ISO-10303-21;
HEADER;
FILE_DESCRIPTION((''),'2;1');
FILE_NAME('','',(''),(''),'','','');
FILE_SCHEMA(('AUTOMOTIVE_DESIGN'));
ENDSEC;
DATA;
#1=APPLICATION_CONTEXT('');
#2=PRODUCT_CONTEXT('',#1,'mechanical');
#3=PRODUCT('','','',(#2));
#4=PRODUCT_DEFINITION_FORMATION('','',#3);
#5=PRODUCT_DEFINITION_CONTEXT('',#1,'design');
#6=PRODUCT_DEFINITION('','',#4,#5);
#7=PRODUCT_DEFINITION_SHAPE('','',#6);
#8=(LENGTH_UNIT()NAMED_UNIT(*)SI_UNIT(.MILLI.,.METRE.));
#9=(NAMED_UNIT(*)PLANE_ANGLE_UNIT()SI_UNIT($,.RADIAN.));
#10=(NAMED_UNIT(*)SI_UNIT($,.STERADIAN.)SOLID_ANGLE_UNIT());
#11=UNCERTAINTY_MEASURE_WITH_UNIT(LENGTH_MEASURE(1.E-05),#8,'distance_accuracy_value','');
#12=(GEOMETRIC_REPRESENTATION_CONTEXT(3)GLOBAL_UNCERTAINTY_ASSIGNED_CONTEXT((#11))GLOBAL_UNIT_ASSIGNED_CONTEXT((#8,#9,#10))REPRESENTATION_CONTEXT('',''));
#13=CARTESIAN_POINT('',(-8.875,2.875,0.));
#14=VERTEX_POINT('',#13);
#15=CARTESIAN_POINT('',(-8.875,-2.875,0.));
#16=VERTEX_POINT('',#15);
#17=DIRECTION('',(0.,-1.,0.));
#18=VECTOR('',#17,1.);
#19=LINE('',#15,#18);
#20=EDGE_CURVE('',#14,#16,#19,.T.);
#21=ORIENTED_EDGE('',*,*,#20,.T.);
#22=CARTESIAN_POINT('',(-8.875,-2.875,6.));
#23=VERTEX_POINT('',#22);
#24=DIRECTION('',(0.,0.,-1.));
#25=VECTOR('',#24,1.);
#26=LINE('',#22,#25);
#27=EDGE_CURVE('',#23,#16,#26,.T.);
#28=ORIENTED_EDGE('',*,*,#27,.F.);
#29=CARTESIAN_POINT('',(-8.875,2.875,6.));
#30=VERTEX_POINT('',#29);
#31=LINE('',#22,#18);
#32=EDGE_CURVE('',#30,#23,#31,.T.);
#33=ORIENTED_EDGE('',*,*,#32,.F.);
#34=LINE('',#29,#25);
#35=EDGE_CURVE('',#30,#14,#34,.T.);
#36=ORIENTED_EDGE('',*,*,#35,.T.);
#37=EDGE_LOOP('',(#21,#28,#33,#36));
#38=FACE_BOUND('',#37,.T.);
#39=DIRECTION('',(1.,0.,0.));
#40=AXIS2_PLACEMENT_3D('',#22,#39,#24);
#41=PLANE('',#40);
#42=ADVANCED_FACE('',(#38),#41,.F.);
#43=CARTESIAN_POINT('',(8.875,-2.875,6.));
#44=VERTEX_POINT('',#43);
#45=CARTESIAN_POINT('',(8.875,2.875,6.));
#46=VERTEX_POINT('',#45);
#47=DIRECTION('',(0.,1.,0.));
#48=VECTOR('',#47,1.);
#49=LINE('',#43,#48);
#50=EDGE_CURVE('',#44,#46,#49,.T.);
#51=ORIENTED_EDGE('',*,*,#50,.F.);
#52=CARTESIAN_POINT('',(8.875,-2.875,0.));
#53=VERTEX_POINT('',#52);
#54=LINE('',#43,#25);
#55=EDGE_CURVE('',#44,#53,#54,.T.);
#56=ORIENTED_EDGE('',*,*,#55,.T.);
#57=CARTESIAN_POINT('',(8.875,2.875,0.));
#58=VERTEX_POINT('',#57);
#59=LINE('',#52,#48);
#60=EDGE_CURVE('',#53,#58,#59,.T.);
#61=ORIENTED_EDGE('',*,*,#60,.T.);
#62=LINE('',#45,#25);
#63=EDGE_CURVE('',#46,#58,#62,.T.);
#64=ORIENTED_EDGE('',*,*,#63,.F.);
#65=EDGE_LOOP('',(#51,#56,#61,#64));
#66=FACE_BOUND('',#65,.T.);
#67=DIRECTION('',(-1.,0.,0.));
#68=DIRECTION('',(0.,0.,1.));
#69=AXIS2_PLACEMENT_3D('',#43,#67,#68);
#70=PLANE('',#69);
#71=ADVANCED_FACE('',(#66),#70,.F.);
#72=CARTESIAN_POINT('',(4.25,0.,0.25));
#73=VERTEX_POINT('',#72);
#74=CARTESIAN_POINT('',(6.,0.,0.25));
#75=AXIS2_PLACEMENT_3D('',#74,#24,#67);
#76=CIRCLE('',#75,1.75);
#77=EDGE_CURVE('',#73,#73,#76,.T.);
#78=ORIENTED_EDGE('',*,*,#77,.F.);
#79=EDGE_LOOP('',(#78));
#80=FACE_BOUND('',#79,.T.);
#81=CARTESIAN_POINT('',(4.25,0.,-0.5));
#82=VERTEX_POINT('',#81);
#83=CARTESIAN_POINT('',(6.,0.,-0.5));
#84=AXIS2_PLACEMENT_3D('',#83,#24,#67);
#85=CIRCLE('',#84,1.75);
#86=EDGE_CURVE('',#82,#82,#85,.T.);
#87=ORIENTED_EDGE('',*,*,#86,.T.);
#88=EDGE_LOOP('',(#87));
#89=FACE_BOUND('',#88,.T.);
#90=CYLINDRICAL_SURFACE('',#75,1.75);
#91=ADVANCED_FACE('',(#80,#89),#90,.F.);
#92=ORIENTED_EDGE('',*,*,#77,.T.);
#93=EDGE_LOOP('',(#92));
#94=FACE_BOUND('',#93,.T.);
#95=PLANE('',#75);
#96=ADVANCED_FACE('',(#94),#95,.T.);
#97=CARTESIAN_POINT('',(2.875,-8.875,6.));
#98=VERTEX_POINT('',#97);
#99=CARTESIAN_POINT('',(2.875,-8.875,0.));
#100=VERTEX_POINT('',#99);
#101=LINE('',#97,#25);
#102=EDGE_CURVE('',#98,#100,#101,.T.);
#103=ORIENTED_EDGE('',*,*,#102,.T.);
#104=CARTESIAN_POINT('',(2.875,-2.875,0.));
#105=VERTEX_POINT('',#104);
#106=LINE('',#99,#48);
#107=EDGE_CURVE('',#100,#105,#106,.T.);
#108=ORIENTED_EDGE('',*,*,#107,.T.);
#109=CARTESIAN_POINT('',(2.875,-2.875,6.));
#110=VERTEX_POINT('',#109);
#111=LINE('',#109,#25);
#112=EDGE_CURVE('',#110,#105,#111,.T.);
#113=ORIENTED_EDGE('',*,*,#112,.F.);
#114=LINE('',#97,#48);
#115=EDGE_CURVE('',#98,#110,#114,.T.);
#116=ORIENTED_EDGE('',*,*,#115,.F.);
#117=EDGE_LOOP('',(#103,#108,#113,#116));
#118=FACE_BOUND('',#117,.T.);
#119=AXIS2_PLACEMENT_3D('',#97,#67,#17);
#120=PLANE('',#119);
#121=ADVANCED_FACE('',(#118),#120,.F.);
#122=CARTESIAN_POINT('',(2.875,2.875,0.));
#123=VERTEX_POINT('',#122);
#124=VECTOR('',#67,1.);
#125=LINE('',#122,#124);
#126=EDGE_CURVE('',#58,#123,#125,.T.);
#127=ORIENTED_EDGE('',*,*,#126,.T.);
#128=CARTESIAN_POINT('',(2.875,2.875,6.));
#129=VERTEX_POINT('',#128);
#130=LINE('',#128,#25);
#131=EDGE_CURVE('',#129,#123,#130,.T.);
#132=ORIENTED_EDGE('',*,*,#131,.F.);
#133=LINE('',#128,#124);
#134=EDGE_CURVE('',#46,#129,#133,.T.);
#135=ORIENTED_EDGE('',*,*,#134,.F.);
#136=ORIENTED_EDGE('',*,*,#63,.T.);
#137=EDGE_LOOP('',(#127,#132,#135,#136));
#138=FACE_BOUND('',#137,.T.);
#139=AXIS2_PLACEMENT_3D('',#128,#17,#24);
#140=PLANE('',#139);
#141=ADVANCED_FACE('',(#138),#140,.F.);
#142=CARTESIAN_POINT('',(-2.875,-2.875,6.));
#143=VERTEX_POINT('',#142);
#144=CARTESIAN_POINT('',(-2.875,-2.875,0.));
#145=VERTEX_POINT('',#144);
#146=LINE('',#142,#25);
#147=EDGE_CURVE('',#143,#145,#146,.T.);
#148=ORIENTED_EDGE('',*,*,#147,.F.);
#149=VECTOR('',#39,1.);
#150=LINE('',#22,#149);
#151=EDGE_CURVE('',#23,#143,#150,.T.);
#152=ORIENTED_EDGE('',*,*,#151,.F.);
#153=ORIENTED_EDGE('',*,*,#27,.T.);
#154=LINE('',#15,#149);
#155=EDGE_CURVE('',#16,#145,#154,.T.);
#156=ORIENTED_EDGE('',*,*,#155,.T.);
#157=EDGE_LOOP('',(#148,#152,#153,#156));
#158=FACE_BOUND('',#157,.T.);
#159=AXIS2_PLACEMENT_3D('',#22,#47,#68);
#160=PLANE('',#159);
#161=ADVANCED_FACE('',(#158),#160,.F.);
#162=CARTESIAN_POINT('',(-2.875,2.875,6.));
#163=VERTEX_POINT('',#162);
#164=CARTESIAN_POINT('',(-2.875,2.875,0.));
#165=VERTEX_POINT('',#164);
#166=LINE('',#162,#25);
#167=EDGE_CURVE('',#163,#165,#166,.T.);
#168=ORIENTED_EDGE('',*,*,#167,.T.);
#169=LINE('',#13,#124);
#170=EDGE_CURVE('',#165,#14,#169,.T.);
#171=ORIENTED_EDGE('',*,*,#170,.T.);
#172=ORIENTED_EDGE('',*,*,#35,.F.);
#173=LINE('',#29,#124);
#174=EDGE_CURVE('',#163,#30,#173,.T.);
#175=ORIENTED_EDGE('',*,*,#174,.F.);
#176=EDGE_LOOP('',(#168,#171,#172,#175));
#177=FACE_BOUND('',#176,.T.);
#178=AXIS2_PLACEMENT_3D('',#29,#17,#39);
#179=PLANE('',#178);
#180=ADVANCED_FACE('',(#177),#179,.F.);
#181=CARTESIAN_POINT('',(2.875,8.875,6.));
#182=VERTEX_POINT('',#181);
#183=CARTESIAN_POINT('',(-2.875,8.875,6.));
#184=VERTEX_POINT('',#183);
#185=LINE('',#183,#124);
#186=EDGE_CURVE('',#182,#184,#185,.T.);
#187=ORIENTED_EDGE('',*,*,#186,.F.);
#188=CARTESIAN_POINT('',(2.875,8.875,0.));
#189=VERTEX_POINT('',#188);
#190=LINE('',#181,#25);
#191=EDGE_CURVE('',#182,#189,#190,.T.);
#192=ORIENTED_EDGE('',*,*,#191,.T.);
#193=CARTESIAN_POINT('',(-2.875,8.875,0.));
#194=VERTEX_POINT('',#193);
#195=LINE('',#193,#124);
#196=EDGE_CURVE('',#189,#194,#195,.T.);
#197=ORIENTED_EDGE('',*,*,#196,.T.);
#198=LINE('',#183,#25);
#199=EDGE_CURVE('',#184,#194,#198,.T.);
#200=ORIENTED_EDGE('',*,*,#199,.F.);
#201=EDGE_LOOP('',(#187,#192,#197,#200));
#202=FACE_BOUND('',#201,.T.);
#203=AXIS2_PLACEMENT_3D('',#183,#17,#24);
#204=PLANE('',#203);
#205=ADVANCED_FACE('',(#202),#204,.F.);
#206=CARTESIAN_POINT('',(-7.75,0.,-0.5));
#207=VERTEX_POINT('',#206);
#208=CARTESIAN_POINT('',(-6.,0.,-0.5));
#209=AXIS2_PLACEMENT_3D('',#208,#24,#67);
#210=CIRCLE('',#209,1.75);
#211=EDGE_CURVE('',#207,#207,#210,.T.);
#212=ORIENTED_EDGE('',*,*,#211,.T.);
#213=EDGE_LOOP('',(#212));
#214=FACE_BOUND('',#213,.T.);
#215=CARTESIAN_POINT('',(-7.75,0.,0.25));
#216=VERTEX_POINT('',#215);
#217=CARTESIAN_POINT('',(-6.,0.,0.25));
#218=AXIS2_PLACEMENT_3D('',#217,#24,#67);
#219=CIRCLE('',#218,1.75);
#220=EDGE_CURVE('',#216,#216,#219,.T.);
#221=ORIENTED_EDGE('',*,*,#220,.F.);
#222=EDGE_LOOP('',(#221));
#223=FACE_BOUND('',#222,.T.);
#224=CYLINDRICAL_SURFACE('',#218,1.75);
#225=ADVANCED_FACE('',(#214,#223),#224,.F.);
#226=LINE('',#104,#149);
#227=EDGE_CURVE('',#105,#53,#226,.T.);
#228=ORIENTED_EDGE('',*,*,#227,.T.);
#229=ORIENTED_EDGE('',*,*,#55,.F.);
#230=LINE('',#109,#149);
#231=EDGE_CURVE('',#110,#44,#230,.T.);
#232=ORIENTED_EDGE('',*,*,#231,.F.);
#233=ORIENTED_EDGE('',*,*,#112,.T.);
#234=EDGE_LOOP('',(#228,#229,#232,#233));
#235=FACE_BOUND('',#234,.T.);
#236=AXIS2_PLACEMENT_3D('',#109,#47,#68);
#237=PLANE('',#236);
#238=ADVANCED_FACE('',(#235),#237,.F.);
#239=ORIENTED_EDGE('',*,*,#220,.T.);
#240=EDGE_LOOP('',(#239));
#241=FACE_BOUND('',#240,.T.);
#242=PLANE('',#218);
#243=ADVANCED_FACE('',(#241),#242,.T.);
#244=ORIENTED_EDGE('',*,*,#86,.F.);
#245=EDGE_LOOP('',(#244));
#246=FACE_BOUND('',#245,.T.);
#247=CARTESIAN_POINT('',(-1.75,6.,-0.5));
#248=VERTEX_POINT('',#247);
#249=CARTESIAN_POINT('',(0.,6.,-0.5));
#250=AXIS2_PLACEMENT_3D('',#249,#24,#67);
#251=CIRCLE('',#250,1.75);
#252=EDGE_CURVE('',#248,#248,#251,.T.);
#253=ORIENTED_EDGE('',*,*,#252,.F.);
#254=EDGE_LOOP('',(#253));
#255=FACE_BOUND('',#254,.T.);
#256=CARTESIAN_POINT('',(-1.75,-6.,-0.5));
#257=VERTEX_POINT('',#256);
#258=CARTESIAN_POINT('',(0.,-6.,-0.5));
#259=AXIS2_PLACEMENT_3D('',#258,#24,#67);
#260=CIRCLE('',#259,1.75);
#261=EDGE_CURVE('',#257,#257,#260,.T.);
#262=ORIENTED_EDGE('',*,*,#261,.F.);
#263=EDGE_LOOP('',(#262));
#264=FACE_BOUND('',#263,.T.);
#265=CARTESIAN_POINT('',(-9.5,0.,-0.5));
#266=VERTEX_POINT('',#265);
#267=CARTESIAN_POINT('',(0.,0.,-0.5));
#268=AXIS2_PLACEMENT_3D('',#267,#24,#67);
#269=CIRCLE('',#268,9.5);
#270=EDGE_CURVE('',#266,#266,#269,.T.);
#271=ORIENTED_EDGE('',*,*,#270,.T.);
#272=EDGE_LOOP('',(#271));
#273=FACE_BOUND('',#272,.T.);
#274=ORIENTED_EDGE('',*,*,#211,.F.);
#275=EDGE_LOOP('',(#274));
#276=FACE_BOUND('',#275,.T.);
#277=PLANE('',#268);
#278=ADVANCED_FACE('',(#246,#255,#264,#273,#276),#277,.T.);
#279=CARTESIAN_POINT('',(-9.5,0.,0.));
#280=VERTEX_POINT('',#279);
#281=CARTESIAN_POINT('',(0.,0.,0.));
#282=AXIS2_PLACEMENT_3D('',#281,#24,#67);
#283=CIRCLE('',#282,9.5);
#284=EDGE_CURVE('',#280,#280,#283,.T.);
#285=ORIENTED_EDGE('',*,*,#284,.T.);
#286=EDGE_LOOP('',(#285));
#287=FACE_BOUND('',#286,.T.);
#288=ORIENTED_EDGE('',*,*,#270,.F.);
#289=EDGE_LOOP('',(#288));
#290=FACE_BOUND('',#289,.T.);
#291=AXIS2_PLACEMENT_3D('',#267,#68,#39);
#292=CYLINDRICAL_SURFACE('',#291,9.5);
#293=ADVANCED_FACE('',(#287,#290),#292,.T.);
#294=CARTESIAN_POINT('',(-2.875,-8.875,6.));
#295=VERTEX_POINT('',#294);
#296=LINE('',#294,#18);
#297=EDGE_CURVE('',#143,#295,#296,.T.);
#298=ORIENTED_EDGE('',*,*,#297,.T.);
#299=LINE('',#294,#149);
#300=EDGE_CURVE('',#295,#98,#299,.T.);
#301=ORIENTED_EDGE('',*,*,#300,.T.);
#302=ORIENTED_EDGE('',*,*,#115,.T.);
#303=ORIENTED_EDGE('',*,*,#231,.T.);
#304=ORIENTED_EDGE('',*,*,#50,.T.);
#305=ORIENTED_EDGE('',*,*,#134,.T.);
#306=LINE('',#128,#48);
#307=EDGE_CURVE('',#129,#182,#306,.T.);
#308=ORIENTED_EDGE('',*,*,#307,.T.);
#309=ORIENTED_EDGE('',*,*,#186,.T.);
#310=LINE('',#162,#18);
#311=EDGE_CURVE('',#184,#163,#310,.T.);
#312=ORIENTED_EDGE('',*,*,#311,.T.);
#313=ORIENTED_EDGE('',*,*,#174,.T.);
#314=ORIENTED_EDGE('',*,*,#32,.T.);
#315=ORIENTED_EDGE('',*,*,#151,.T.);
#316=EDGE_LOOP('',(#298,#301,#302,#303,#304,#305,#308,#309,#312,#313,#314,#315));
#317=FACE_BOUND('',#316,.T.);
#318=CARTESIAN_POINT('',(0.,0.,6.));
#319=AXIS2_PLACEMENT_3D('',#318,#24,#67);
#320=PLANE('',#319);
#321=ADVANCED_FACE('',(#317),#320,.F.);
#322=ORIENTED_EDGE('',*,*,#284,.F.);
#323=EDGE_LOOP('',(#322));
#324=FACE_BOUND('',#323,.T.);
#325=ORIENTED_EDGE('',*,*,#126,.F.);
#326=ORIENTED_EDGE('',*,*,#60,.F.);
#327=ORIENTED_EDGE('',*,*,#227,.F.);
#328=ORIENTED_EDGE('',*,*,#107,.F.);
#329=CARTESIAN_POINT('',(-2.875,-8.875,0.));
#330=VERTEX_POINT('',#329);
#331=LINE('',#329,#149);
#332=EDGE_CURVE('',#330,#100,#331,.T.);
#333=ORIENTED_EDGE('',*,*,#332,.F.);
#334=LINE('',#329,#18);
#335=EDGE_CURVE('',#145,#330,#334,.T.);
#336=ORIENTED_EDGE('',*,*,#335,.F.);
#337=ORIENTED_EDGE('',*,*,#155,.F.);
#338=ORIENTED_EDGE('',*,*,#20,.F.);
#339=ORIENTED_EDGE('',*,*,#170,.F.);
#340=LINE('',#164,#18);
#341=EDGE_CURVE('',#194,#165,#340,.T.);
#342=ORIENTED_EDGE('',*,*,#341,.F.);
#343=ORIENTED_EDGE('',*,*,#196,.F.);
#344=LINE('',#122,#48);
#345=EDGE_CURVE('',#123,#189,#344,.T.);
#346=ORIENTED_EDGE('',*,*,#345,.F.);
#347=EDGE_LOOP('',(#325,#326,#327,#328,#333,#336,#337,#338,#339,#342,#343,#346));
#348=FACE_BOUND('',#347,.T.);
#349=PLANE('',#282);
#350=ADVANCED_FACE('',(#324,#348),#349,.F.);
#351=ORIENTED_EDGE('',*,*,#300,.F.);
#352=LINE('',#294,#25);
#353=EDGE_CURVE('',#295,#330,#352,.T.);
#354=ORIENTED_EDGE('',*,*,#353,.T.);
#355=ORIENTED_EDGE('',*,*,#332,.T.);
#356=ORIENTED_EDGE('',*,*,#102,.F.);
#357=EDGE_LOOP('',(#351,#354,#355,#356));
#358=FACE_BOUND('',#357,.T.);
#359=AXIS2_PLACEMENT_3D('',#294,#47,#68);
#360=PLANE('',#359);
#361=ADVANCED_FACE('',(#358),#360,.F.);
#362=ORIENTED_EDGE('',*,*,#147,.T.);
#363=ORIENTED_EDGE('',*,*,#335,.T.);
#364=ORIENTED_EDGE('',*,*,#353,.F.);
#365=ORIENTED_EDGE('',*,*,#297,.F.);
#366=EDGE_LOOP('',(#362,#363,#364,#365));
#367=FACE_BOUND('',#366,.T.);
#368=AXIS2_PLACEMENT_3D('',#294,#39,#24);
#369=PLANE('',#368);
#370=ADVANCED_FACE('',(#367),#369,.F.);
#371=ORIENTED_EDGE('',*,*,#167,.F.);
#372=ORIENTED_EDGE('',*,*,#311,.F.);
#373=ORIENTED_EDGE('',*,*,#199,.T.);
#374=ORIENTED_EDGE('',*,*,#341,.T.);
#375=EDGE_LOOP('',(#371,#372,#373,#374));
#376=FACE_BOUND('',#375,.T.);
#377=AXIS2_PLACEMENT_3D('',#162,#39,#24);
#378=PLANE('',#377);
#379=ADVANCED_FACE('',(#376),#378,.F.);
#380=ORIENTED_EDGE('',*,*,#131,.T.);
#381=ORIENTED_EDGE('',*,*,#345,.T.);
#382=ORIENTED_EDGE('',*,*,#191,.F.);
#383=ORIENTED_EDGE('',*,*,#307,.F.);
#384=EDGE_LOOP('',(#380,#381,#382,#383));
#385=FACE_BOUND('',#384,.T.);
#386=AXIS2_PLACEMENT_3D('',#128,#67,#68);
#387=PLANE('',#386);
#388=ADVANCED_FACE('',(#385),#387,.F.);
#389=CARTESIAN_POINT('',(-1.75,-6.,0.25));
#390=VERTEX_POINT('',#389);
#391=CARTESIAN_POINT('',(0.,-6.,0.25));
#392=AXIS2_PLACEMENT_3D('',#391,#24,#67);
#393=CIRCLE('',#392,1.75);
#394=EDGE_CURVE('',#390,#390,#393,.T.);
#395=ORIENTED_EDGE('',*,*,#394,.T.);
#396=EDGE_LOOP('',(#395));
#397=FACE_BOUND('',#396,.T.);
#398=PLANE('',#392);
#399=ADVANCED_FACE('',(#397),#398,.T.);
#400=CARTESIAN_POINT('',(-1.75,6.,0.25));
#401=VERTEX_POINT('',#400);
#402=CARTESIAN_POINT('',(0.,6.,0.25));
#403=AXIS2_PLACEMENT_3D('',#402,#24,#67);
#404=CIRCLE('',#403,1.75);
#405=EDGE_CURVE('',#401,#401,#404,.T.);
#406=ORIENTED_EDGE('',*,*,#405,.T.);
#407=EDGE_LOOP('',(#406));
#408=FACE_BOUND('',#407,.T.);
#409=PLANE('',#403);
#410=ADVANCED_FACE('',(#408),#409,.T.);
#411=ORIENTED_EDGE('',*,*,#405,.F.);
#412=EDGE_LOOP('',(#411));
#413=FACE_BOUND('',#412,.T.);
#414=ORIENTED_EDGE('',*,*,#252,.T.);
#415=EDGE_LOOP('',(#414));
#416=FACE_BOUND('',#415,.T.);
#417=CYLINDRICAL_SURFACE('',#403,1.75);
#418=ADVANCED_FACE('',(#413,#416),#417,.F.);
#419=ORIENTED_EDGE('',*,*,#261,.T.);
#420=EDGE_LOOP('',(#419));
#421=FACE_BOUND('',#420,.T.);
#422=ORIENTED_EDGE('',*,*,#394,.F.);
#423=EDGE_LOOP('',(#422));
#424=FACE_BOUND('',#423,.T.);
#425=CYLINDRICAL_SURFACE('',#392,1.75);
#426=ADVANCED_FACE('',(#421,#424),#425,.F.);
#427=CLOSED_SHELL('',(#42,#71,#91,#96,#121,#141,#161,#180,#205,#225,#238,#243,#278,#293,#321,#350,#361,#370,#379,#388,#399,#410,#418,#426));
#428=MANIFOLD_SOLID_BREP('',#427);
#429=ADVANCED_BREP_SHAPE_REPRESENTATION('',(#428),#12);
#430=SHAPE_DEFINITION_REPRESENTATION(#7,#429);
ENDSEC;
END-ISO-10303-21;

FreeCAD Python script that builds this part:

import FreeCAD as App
import Part
import Sketcher
from FreeCAD import Vector


def add_polygon(sketch, points):
    """Adds a closed chain of lines whose ends are joined by coincident constraints."""
    first, n = sketch.GeometryCount, len(points)
    for a, b in zip(points, points[1:] + points[:1]):
        sketch.addGeometry(Part.LineSegment(App.Vector(*a, 0), App.Vector(*b, 0)), False)
    for i in range(n):
        sketch.addConstraint(Sketcher.Constraint("Coincident", first + i, 2, first + (i + 1) % n, 1))

doc = App.newDocument("Part")
body = doc.addObject("PartDesign::Body", "Body")

# Sketch on XY plane
sketch1 = body.newObject("Sketcher::SketchObject", "Sketch")
sketch1.AttachmentSupport = (doc.getObject("XY_Plane"), [""])
sketch1.MapMode = "FlatFace"
add_polygon(sketch1, [(-3, 9), (-3, 3), (-9, 3), (-9, -3), (-3, -3), (-3, -9), (3, -9), (3, -3), (9, -3), (9, 3), (3, 3), (3, 9)])  # lines 0-11
sketch1.addConstraint([
    Sketcher.Constraint("Vertical", 0),
    Sketcher.Constraint("Horizontal", 1),
    Sketcher.Constraint("Vertical", 2),
    Sketcher.Constraint("Horizontal", 3),
    Sketcher.Constraint("Vertical", 4),
    Sketcher.Constraint("Horizontal", 5),
    Sketcher.Constraint("Vertical", 6),
    Sketcher.Constraint("Horizontal", 7),
    Sketcher.Constraint("Vertical", 8),
    Sketcher.Constraint("Horizontal", 9),
    Sketcher.Constraint("Vertical", 10),
    Sketcher.Constraint("Horizontal", 11),
    Sketcher.Constraint("Symmetric", 0, 2, 6, 2, -1, 1),
    Sketcher.Constraint("Symmetric", 2, 2, 8, 2, -1, 1),
    Sketcher.Constraint("Symmetric", 4, 2, 10, 2, -1, 1),
    Sketcher.Constraint("Symmetric", 3, 2, 6, 2, -2),
    Sketcher.Constraint("Equal", 9, 0),
    Sketcher.Constraint("Equal", 11, 2),
    Sketcher.Constraint("DistanceX", 1, 2, 1, 1, 6.0),
    Sketcher.Constraint("DistanceX", 5, 1, 5, 2, 5.75),
])
pad1 = body.newObject("PartDesign::Pad", "Pad")
pad1.Profile = sketch1
pad1.Length = 6

# Sketch on XY plane
sketch2 = body.newObject("Sketcher::SketchObject", "Sketch001")
sketch2.AttachmentSupport = (doc.getObject("XY_Plane"), [""])
sketch2.MapMode = "FlatFace"
sketch2.addGeometry(Part.Circle(Vector(0, 0, 0), Vector(0, 0, 1), 10), False)
sketch2.addConstraint([
    Sketcher.Constraint("Coincident", 0, 3, -1, 1),
    Sketcher.Constraint("Diameter", 0, 19.0),
])
pad2 = body.newObject("PartDesign::Pad", "Pad001")
pad2.Profile = sketch2
pad2.Length = 0.5
pad2.Reversed = True

# Sketch on XY plane
sketch3 = body.newObject("Sketcher::SketchObject", "Sketch002")
sketch3.AttachmentSupport = (doc.getObject("XY_Plane"), [""])
sketch3.MapMode = "FlatFace"
sketch3.AttachmentOffset = App.Placement(Vector(0, 0, -0.5), App.Rotation())
sketch3.addGeometry([
    Part.Circle(Vector(-6, 0, 0), Vector(0, 0, 1), 1.8),
    Part.Circle(Vector(0, -6, 0), Vector(0, 0, 1), 1.8),
    Part.Circle(Vector(6, 0, 0), Vector(0, 0, 1), 1.8),
    Part.Circle(Vector(0, 6, 0), Vector(0, 0, 1), 1.8),
], False)
sketch3.addConstraint([
    Sketcher.Constraint("Equal", 0, 1),
    Sketcher.Constraint("Equal", 1, 2),
    Sketcher.Constraint("Equal", 2, 3),
    Sketcher.Constraint("Symmetric", 0, 3, 2, 3, -1, 1),
    Sketcher.Constraint("Symmetric", 1, 3, 3, 3, -1, 1),
    Sketcher.Constraint("PointOnObject", 0, 3, -1),
    Sketcher.Constraint("PointOnObject", 1, 3, -2),
    Sketcher.Constraint("Diameter", 0, 3.5),
    Sketcher.Constraint("DistanceX", 0, 3, -1, 1, 6.0),
    Sketcher.Constraint("DistanceY", 1, 3, -1, 1, 6.0),
])
pocket1 = body.newObject("PartDesign::Pocket", "Pocket")
pocket1.Profile = sketch3
pocket1.Length = 0.75
pocket1.Reversed = True

doc.recompute()
